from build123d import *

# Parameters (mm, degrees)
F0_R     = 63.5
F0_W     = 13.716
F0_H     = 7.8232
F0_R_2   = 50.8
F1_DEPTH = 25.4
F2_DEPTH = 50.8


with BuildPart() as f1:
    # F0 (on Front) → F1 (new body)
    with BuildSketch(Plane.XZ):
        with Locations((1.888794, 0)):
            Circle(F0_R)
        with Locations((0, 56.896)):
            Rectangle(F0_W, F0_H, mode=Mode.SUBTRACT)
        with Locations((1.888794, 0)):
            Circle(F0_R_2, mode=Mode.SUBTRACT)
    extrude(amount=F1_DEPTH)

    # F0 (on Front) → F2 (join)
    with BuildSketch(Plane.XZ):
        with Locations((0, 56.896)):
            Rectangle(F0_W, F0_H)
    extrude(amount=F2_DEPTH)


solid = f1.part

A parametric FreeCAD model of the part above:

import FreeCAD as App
import Part
import Sketcher
Q = App.Units.Quantity


def add_polygon(sketch, points):
    """Adds a closed chain of lines whose ends are joined by coincident constraints."""
    first, n = sketch.GeometryCount, len(points)
    for a, b in zip(points, points[1:] + points[:1]):
        sketch.addGeometry(Part.LineSegment(App.Vector(*a, 0), App.Vector(*b, 0)), False)
    for i in range(n):
        sketch.addConstraint(Sketcher.Constraint("Coincident", first + i, 2, first + (i + 1) % n, 1))

doc = App.newDocument("Part")
params = doc.addObject("Spreadsheet::Sheet", "Params")
for row, (alias, value) in enumerate([
    ("sketch1_diameter", "5 in"),
    ("sketch1_diameter2", "4 in"),
    ("sketch1_width", "0.54 in"),
    ("sketch1_height", "0.308 in"),
    ("pad1_length", "1 in"),
    ("sketch2_width", "0.54 in"),
    ("sketch2_height", "0.308 in"),
    ("pad2_length", "2 in"),
], start=1):
    params.set(f"A{row}", alias)
    params.set(f"B{row}", "=" + value)
    params.setAlias(f"B{row}", alias)

body = doc.addObject("PartDesign::Body", "Body")

# Sketch on XZ plane
sketch1 = body.newObject("Sketcher::SketchObject", "Sketch")
sketch1.AttachmentSupport = (doc.getObject("XZ_Plane"), [""])
sketch1.MapMode = "FlatFace"
sketch1.addGeometry(Part.Circle(App.Vector(2, 0, 0), App.Vector(0, 0, 1), 64), False)  # 0
sketch1.addGeometry(Part.Circle(App.Vector(2, 0, 0), App.Vector(0, 0, 1), 51), False)  # 1
add_polygon(sketch1, [(7, 53), (-7, 53), (-7, 61), (7, 61)])  # lines 2-5
sketch1.addConstraint([
    Sketcher.Constraint("Horizontal", 2),
    Sketcher.Constraint("Vertical", 3),
    Sketcher.Constraint("Horizontal", 4),
    Sketcher.Constraint("Vertical", 5),
    Sketcher.Constraint("Coincident", 1, 3, 0, 3),
    Sketcher.Constraint("PointOnObject", 0, 3, -1),
    Sketcher.Constraint("Diameter", 0, Q("5 in")),
    Sketcher.Constraint("Diameter", 1, Q("4 in")),
    Sketcher.Constraint("DistanceX", 2, 2, 2, 1, Q("0.54 in")),
    Sketcher.Constraint("DistanceY", 3, 1, 3, 2, Q("0.308 in")),
    Sketcher.Constraint("DistanceX", 2, 2, -1, 1, Q("0.27 in")),
    Sketcher.Constraint("DistanceY", -1, 1, 2, 2, Q("2.086 in")),
    Sketcher.Constraint("DistanceX", -1, 1, 0, 3, 1.888794),
])
sketch1.setExpression("Constraints[10]", "Params.sketch1_diameter")
sketch1.setExpression("Constraints[11]", "Params.sketch1_diameter2")
sketch1.setExpression("Constraints[12]", "Params.sketch1_width")
sketch1.setExpression("Constraints[13]", "Params.sketch1_height")
pad1 = body.newObject("PartDesign::Pad", "Pad")
pad1.Profile = sketch1
pad1.setExpression("Length", "Params.pad1_length")

# Sketch on XZ plane
sketch2 = body.newObject("Sketcher::SketchObject", "Sketch001")
sketch2.AttachmentSupport = (doc.getObject("XZ_Plane"), [""])
sketch2.MapMode = "FlatFace"
add_polygon(sketch2, [(-7, 61), (-7, 53), (7, 53), (7, 61)])  # lines 0-3
sketch2.addConstraint([
    Sketcher.Constraint("Vertical", 0),
    Sketcher.Constraint("Horizontal", 1),
    Sketcher.Constraint("Vertical", 2),
    Sketcher.Constraint("Horizontal", 3),
    Sketcher.Constraint("DistanceX", 1, 1, 1, 2, Q("0.54 in")),
    Sketcher.Constraint("DistanceY", 0, 2, 0, 1, Q("0.308 in")),
    Sketcher.Constraint("DistanceX", 0, 2, -1, 1, Q("0.27 in")),
    Sketcher.Constraint("DistanceY", -1, 1, 0, 2, Q("2.086 in")),
])
sketch2.setExpression("Constraints[8]", "Params.sketch2_width")
sketch2.setExpression("Constraints[9]", "Params.sketch2_height")
pad2 = body.newObject("PartDesign::Pad", "Pad001")
pad2.Profile = sketch2
pad2.setExpression("Length", "Params.pad2_length")

doc.recompute()
